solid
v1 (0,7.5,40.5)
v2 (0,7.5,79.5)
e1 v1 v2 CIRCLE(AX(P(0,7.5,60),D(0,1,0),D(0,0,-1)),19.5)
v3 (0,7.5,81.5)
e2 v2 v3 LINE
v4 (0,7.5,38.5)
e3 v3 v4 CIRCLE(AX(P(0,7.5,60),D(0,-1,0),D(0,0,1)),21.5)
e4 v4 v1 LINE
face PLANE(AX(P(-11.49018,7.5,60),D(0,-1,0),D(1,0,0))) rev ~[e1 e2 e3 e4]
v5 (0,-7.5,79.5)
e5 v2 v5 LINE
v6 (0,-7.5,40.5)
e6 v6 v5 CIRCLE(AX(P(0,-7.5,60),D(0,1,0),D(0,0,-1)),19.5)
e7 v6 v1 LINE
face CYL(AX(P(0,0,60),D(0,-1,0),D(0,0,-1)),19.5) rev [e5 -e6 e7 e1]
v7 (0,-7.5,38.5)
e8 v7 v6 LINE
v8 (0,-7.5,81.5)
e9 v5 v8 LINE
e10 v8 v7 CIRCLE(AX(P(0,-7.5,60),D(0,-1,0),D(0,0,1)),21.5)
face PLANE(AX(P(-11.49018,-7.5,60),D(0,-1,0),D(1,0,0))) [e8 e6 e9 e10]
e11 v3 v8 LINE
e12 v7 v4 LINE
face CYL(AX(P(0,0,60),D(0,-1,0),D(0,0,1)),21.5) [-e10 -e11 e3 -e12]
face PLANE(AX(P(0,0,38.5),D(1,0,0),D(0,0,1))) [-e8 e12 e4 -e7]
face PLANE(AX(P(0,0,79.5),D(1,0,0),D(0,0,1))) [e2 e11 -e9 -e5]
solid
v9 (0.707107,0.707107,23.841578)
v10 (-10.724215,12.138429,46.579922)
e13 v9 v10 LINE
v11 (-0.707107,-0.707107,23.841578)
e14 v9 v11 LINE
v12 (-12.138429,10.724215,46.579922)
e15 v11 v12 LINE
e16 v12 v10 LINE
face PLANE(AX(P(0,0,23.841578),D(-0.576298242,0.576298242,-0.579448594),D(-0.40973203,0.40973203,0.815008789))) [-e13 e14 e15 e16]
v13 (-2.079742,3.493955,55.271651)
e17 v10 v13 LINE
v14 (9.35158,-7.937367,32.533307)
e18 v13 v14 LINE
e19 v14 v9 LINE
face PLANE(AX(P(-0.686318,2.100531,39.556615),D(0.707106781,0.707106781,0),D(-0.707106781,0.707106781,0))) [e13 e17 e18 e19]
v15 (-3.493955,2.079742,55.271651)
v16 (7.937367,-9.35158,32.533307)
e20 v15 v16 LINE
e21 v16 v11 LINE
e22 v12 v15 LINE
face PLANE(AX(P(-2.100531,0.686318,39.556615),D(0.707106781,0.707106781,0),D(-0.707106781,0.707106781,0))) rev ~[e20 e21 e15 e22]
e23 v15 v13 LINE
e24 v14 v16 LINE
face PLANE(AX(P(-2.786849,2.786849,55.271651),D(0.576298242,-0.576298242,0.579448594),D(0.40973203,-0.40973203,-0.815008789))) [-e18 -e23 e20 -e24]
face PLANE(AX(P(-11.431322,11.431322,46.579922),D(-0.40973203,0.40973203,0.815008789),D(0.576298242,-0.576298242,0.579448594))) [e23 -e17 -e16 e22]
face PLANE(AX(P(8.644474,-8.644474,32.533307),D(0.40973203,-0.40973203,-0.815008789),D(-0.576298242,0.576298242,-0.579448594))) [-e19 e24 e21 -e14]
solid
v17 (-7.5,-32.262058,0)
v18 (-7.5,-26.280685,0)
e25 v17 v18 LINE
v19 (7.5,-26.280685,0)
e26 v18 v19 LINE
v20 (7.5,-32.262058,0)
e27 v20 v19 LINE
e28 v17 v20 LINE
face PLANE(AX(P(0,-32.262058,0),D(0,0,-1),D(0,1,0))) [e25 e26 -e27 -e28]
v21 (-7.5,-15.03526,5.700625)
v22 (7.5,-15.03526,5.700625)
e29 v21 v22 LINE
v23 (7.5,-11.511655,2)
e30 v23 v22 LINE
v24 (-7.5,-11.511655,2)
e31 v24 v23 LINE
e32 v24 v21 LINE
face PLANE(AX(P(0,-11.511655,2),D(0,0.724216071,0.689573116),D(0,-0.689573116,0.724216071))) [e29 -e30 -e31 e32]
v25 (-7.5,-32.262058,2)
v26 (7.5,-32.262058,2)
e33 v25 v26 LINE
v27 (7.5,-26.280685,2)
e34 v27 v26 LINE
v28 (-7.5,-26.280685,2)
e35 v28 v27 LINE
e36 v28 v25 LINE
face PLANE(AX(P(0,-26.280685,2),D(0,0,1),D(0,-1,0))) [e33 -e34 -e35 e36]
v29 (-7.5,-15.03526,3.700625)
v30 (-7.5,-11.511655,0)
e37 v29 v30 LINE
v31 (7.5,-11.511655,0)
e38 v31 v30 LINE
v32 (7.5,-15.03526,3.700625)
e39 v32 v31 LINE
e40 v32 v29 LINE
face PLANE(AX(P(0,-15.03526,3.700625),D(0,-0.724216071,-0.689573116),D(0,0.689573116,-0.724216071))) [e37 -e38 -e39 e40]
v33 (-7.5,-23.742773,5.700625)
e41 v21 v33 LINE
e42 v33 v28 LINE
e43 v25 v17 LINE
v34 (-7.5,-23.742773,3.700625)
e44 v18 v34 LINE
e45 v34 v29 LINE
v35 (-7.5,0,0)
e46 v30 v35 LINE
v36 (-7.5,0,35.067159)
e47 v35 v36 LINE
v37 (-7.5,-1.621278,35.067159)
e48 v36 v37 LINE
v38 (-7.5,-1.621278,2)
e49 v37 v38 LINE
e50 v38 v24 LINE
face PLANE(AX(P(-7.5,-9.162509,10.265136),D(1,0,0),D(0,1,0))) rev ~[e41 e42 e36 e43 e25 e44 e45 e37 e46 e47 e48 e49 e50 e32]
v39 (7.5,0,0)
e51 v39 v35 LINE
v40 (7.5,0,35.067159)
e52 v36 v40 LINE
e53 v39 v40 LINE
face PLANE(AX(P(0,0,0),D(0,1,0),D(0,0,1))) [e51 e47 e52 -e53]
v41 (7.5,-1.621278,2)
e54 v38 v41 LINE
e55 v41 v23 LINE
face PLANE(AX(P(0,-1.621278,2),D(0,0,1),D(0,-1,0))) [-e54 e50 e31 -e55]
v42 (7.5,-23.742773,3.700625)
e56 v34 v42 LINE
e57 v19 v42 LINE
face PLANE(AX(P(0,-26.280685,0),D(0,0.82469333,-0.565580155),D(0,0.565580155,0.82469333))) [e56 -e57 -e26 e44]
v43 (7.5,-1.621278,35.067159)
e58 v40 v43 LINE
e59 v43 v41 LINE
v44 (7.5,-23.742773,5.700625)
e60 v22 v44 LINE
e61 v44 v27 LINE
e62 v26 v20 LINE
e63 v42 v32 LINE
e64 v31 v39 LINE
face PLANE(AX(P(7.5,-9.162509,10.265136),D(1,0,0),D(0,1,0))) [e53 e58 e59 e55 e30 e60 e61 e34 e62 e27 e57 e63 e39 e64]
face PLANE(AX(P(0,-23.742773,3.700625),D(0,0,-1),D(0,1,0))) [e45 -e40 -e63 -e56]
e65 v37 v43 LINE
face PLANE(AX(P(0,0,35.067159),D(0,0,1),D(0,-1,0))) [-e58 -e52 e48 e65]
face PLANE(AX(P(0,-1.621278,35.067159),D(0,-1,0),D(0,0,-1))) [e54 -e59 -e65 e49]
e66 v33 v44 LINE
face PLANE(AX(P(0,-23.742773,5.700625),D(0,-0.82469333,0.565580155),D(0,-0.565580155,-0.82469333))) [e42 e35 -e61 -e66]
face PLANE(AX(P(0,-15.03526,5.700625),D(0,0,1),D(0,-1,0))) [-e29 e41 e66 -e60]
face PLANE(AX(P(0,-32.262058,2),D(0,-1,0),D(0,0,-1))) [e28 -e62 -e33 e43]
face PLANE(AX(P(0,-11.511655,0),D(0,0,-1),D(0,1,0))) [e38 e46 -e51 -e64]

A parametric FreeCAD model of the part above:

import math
import FreeCAD as App
import Part
import Sketcher
from FreeCAD import Vector
Q = App.Units.Quantity


def add_polygon(sketch, points):
    """Adds a closed chain of lines whose ends are joined by coincident constraints."""
    first, n = sketch.GeometryCount, len(points)
    for a, b in zip(points, points[1:] + points[:1]):
        sketch.addGeometry(Part.LineSegment(App.Vector(*a, 0), App.Vector(*b, 0)), False)
    for i in range(n):
        sketch.addConstraint(Sketcher.Constraint("Coincident", first + i, 2, first + (i + 1) % n, 1))

doc = App.newDocument("Part")
body = doc.addObject("PartDesign::Body", "Body")

# Sketch on XZ plane
sketch1 = body.newObject("Sketcher::SketchObject", "Sketch")
sketch1.AttachmentSupport = (doc.getObject("XZ_Plane"), [""])
sketch1.MapMode = "FlatFace"
sketch1.addGeometry([
    Part.ArcOfCircle(Part.Circle(Vector(0, 60, 0), Vector(0, 0, 1), 19.5), math.radians(90), math.radians(270)),
    Part.LineSegment(Vector(0, 79.5, 0), Vector(0, 81.5, 0)),
    Part.ArcOfCircle(Part.Circle(Vector(0, 60, 0), Vector(0, 0, 1), 21.5), math.radians(90), math.radians(270)),
    Part.LineSegment(Vector(0, 38.5, 0), Vector(0, 40.5, 0)),
], False)
sketch1.addConstraint([
    Sketcher.Constraint("Coincident", 0, 1, 1, 1),
    Sketcher.Constraint("Coincident", 1, 2, 2, 1),
    Sketcher.Constraint("Coincident", 2, 2, 3, 1),
    Sketcher.Constraint("Coincident", 3, 2, 0, 2),
    Sketcher.Constraint("Vertical", 1),
    Sketcher.Constraint("Vertical", 3),
    Sketcher.Constraint("Coincident", 2, 3, 0, 3),
    Sketcher.Constraint("PointOnObject", 0, 3, -2),
    Sketcher.Constraint("PointOnObject", 0, 1, -2),
    Sketcher.Constraint("PointOnObject", 2, 2, -2),
    Sketcher.Constraint("Radius", 0, Q("19.5 mm")),
    Sketcher.Constraint("Radius", 2, Q("21.5 mm")),
    Sketcher.Constraint("DistanceY", -1, 1, 0, 3, Q("60 mm")),
])
pad1 = body.newObject("PartDesign::Pad", "Pad")
pad1.Profile = sketch1
pad1.Length = 15
pad1.Midplane = True
body2 = doc.addObject("PartDesign::Body", "Body001")

# Sketch on YZ plane
sketch2 = body2.newObject("Sketcher::SketchObject", "Sketch001")
sketch2.AttachmentSupport = (doc.getObject("YZ_Plane001"), [""])
sketch2.MapMode = "FlatFace"
add_polygon(sketch2, [(0, 0), (0, 35.1), (-1.6, 35.1), (-1.6, 2), (-11.5, 2), (-15, 5.7), (-23.7, 5.7), (-26.3, 2), (-32.3, 2), (-32.3, 0), (-26.3, 0), (-23.7, 3.7), (-15, 3.7), (-11.5, 0)])  # lines 0-13
sketch2.addConstraint([
    Sketcher.Constraint("Vertical", 0),
    Sketcher.Constraint("Horizontal", 1),
    Sketcher.Constraint("Vertical", 2),
    Sketcher.Constraint("Horizontal", 3),
    Sketcher.Constraint("Horizontal", 5),
    Sketcher.Constraint("Horizontal", 7),
    Sketcher.Constraint("Vertical", 8),
    Sketcher.Constraint("Horizontal", 9),
    Sketcher.Constraint("Horizontal", 11),
    Sketcher.Constraint("Horizontal", 13),
    Sketcher.Constraint("Coincident", 13, 2, -1, 1),
    Sketcher.Constraint("PointOnObject", 8, 2, -1),
    Sketcher.Constraint("Parallel", 6, 10),
    Sketcher.Constraint("Parallel", 4, 12),
    Sketcher.Constraint("Horizontal", 3, 2, 6, 2),
    Sketcher.Constraint("Vertical", 6, 2, 9, 2),
    Sketcher.Constraint("Vertical", 5, 2, 10, 2),
    Sketcher.Constraint("Vertical", 4, 2, 11, 2),
    Sketcher.Constraint("DistanceY", 8, 2, 8, 1, Q("2 mm")),
    Sketcher.Constraint("DistanceX", 1, 2, 1, 1, Q("1.621278 mm")),
    Sketcher.Constraint("DistanceY", 0, 1, 0, 2, Q("35.067159 mm")),
    Sketcher.Constraint("DistanceX", 7, 2, 4, 2, Q("17.226798 mm")),
    Sketcher.Constraint("DistanceX", 3, 2, 3, 1, Q("9.890377 mm")),
    Sketcher.Constraint("DistanceX", 5, 2, 5, 1, Q("8.707513 mm")),
    Sketcher.Constraint("DistanceX", 7, 2, 7, 1, Q("5.981372 mm")),
    Sketcher.Constraint("DistanceX", 4, 2, -1, 1, Q("15.03526 mm")),
    Sketcher.Constraint("Distance", 4, Q("5.109835 mm")),
])
pad2 = body2.newObject("PartDesign::Pad", "Pad001")
pad2.Profile = sketch2
pad2.Length = 15
pad2.Midplane = True
body3 = doc.addObject("PartDesign::Body", "Body002")

# Sketch on an angled plane
sketch3 = body3.newObject("Sketcher::SketchObject", "Sketch002")
sketch3.Placement = App.Placement(Vector(0, 0, 0), App.Rotation(Vector(-0.707106781, 0.707106781, 0), Vector(0, 0, 0.999999999), Vector(0.707106781, 0.707106781, 0), "ZXY"))
add_polygon(sketch3, [(0, 24), (16, 47), (4, 55), (-12, 33)])  # lines 0-3
sketch3.addConstraint([
    Sketcher.Constraint("PointOnObject", 3, 2, -2),
    Sketcher.Constraint("Perpendicular", 0, 1),
    Sketcher.Constraint("Perpendicular", 1, 2),
    Sketcher.Constraint("Perpendicular", 2, 3),
    Sketcher.Constraint("Distance", 1, Q("15 mm")),
    Sketcher.Constraint("DistanceX", -1, 1, 1, 2, Q("3.941199 mm")),
    Sketcher.Constraint("Distance", 0, Q("27.899508 mm")),
    Sketcher.Constraint("DistanceY", -1, 1, 1, 2, Q("55.271651 mm")),
])
pad3 = body3.newObject("PartDesign::Pad", "Pad002")
pad3.Profile = sketch3
pad3.Length = 2
pad3.Midplane = True

doc.recompute()
